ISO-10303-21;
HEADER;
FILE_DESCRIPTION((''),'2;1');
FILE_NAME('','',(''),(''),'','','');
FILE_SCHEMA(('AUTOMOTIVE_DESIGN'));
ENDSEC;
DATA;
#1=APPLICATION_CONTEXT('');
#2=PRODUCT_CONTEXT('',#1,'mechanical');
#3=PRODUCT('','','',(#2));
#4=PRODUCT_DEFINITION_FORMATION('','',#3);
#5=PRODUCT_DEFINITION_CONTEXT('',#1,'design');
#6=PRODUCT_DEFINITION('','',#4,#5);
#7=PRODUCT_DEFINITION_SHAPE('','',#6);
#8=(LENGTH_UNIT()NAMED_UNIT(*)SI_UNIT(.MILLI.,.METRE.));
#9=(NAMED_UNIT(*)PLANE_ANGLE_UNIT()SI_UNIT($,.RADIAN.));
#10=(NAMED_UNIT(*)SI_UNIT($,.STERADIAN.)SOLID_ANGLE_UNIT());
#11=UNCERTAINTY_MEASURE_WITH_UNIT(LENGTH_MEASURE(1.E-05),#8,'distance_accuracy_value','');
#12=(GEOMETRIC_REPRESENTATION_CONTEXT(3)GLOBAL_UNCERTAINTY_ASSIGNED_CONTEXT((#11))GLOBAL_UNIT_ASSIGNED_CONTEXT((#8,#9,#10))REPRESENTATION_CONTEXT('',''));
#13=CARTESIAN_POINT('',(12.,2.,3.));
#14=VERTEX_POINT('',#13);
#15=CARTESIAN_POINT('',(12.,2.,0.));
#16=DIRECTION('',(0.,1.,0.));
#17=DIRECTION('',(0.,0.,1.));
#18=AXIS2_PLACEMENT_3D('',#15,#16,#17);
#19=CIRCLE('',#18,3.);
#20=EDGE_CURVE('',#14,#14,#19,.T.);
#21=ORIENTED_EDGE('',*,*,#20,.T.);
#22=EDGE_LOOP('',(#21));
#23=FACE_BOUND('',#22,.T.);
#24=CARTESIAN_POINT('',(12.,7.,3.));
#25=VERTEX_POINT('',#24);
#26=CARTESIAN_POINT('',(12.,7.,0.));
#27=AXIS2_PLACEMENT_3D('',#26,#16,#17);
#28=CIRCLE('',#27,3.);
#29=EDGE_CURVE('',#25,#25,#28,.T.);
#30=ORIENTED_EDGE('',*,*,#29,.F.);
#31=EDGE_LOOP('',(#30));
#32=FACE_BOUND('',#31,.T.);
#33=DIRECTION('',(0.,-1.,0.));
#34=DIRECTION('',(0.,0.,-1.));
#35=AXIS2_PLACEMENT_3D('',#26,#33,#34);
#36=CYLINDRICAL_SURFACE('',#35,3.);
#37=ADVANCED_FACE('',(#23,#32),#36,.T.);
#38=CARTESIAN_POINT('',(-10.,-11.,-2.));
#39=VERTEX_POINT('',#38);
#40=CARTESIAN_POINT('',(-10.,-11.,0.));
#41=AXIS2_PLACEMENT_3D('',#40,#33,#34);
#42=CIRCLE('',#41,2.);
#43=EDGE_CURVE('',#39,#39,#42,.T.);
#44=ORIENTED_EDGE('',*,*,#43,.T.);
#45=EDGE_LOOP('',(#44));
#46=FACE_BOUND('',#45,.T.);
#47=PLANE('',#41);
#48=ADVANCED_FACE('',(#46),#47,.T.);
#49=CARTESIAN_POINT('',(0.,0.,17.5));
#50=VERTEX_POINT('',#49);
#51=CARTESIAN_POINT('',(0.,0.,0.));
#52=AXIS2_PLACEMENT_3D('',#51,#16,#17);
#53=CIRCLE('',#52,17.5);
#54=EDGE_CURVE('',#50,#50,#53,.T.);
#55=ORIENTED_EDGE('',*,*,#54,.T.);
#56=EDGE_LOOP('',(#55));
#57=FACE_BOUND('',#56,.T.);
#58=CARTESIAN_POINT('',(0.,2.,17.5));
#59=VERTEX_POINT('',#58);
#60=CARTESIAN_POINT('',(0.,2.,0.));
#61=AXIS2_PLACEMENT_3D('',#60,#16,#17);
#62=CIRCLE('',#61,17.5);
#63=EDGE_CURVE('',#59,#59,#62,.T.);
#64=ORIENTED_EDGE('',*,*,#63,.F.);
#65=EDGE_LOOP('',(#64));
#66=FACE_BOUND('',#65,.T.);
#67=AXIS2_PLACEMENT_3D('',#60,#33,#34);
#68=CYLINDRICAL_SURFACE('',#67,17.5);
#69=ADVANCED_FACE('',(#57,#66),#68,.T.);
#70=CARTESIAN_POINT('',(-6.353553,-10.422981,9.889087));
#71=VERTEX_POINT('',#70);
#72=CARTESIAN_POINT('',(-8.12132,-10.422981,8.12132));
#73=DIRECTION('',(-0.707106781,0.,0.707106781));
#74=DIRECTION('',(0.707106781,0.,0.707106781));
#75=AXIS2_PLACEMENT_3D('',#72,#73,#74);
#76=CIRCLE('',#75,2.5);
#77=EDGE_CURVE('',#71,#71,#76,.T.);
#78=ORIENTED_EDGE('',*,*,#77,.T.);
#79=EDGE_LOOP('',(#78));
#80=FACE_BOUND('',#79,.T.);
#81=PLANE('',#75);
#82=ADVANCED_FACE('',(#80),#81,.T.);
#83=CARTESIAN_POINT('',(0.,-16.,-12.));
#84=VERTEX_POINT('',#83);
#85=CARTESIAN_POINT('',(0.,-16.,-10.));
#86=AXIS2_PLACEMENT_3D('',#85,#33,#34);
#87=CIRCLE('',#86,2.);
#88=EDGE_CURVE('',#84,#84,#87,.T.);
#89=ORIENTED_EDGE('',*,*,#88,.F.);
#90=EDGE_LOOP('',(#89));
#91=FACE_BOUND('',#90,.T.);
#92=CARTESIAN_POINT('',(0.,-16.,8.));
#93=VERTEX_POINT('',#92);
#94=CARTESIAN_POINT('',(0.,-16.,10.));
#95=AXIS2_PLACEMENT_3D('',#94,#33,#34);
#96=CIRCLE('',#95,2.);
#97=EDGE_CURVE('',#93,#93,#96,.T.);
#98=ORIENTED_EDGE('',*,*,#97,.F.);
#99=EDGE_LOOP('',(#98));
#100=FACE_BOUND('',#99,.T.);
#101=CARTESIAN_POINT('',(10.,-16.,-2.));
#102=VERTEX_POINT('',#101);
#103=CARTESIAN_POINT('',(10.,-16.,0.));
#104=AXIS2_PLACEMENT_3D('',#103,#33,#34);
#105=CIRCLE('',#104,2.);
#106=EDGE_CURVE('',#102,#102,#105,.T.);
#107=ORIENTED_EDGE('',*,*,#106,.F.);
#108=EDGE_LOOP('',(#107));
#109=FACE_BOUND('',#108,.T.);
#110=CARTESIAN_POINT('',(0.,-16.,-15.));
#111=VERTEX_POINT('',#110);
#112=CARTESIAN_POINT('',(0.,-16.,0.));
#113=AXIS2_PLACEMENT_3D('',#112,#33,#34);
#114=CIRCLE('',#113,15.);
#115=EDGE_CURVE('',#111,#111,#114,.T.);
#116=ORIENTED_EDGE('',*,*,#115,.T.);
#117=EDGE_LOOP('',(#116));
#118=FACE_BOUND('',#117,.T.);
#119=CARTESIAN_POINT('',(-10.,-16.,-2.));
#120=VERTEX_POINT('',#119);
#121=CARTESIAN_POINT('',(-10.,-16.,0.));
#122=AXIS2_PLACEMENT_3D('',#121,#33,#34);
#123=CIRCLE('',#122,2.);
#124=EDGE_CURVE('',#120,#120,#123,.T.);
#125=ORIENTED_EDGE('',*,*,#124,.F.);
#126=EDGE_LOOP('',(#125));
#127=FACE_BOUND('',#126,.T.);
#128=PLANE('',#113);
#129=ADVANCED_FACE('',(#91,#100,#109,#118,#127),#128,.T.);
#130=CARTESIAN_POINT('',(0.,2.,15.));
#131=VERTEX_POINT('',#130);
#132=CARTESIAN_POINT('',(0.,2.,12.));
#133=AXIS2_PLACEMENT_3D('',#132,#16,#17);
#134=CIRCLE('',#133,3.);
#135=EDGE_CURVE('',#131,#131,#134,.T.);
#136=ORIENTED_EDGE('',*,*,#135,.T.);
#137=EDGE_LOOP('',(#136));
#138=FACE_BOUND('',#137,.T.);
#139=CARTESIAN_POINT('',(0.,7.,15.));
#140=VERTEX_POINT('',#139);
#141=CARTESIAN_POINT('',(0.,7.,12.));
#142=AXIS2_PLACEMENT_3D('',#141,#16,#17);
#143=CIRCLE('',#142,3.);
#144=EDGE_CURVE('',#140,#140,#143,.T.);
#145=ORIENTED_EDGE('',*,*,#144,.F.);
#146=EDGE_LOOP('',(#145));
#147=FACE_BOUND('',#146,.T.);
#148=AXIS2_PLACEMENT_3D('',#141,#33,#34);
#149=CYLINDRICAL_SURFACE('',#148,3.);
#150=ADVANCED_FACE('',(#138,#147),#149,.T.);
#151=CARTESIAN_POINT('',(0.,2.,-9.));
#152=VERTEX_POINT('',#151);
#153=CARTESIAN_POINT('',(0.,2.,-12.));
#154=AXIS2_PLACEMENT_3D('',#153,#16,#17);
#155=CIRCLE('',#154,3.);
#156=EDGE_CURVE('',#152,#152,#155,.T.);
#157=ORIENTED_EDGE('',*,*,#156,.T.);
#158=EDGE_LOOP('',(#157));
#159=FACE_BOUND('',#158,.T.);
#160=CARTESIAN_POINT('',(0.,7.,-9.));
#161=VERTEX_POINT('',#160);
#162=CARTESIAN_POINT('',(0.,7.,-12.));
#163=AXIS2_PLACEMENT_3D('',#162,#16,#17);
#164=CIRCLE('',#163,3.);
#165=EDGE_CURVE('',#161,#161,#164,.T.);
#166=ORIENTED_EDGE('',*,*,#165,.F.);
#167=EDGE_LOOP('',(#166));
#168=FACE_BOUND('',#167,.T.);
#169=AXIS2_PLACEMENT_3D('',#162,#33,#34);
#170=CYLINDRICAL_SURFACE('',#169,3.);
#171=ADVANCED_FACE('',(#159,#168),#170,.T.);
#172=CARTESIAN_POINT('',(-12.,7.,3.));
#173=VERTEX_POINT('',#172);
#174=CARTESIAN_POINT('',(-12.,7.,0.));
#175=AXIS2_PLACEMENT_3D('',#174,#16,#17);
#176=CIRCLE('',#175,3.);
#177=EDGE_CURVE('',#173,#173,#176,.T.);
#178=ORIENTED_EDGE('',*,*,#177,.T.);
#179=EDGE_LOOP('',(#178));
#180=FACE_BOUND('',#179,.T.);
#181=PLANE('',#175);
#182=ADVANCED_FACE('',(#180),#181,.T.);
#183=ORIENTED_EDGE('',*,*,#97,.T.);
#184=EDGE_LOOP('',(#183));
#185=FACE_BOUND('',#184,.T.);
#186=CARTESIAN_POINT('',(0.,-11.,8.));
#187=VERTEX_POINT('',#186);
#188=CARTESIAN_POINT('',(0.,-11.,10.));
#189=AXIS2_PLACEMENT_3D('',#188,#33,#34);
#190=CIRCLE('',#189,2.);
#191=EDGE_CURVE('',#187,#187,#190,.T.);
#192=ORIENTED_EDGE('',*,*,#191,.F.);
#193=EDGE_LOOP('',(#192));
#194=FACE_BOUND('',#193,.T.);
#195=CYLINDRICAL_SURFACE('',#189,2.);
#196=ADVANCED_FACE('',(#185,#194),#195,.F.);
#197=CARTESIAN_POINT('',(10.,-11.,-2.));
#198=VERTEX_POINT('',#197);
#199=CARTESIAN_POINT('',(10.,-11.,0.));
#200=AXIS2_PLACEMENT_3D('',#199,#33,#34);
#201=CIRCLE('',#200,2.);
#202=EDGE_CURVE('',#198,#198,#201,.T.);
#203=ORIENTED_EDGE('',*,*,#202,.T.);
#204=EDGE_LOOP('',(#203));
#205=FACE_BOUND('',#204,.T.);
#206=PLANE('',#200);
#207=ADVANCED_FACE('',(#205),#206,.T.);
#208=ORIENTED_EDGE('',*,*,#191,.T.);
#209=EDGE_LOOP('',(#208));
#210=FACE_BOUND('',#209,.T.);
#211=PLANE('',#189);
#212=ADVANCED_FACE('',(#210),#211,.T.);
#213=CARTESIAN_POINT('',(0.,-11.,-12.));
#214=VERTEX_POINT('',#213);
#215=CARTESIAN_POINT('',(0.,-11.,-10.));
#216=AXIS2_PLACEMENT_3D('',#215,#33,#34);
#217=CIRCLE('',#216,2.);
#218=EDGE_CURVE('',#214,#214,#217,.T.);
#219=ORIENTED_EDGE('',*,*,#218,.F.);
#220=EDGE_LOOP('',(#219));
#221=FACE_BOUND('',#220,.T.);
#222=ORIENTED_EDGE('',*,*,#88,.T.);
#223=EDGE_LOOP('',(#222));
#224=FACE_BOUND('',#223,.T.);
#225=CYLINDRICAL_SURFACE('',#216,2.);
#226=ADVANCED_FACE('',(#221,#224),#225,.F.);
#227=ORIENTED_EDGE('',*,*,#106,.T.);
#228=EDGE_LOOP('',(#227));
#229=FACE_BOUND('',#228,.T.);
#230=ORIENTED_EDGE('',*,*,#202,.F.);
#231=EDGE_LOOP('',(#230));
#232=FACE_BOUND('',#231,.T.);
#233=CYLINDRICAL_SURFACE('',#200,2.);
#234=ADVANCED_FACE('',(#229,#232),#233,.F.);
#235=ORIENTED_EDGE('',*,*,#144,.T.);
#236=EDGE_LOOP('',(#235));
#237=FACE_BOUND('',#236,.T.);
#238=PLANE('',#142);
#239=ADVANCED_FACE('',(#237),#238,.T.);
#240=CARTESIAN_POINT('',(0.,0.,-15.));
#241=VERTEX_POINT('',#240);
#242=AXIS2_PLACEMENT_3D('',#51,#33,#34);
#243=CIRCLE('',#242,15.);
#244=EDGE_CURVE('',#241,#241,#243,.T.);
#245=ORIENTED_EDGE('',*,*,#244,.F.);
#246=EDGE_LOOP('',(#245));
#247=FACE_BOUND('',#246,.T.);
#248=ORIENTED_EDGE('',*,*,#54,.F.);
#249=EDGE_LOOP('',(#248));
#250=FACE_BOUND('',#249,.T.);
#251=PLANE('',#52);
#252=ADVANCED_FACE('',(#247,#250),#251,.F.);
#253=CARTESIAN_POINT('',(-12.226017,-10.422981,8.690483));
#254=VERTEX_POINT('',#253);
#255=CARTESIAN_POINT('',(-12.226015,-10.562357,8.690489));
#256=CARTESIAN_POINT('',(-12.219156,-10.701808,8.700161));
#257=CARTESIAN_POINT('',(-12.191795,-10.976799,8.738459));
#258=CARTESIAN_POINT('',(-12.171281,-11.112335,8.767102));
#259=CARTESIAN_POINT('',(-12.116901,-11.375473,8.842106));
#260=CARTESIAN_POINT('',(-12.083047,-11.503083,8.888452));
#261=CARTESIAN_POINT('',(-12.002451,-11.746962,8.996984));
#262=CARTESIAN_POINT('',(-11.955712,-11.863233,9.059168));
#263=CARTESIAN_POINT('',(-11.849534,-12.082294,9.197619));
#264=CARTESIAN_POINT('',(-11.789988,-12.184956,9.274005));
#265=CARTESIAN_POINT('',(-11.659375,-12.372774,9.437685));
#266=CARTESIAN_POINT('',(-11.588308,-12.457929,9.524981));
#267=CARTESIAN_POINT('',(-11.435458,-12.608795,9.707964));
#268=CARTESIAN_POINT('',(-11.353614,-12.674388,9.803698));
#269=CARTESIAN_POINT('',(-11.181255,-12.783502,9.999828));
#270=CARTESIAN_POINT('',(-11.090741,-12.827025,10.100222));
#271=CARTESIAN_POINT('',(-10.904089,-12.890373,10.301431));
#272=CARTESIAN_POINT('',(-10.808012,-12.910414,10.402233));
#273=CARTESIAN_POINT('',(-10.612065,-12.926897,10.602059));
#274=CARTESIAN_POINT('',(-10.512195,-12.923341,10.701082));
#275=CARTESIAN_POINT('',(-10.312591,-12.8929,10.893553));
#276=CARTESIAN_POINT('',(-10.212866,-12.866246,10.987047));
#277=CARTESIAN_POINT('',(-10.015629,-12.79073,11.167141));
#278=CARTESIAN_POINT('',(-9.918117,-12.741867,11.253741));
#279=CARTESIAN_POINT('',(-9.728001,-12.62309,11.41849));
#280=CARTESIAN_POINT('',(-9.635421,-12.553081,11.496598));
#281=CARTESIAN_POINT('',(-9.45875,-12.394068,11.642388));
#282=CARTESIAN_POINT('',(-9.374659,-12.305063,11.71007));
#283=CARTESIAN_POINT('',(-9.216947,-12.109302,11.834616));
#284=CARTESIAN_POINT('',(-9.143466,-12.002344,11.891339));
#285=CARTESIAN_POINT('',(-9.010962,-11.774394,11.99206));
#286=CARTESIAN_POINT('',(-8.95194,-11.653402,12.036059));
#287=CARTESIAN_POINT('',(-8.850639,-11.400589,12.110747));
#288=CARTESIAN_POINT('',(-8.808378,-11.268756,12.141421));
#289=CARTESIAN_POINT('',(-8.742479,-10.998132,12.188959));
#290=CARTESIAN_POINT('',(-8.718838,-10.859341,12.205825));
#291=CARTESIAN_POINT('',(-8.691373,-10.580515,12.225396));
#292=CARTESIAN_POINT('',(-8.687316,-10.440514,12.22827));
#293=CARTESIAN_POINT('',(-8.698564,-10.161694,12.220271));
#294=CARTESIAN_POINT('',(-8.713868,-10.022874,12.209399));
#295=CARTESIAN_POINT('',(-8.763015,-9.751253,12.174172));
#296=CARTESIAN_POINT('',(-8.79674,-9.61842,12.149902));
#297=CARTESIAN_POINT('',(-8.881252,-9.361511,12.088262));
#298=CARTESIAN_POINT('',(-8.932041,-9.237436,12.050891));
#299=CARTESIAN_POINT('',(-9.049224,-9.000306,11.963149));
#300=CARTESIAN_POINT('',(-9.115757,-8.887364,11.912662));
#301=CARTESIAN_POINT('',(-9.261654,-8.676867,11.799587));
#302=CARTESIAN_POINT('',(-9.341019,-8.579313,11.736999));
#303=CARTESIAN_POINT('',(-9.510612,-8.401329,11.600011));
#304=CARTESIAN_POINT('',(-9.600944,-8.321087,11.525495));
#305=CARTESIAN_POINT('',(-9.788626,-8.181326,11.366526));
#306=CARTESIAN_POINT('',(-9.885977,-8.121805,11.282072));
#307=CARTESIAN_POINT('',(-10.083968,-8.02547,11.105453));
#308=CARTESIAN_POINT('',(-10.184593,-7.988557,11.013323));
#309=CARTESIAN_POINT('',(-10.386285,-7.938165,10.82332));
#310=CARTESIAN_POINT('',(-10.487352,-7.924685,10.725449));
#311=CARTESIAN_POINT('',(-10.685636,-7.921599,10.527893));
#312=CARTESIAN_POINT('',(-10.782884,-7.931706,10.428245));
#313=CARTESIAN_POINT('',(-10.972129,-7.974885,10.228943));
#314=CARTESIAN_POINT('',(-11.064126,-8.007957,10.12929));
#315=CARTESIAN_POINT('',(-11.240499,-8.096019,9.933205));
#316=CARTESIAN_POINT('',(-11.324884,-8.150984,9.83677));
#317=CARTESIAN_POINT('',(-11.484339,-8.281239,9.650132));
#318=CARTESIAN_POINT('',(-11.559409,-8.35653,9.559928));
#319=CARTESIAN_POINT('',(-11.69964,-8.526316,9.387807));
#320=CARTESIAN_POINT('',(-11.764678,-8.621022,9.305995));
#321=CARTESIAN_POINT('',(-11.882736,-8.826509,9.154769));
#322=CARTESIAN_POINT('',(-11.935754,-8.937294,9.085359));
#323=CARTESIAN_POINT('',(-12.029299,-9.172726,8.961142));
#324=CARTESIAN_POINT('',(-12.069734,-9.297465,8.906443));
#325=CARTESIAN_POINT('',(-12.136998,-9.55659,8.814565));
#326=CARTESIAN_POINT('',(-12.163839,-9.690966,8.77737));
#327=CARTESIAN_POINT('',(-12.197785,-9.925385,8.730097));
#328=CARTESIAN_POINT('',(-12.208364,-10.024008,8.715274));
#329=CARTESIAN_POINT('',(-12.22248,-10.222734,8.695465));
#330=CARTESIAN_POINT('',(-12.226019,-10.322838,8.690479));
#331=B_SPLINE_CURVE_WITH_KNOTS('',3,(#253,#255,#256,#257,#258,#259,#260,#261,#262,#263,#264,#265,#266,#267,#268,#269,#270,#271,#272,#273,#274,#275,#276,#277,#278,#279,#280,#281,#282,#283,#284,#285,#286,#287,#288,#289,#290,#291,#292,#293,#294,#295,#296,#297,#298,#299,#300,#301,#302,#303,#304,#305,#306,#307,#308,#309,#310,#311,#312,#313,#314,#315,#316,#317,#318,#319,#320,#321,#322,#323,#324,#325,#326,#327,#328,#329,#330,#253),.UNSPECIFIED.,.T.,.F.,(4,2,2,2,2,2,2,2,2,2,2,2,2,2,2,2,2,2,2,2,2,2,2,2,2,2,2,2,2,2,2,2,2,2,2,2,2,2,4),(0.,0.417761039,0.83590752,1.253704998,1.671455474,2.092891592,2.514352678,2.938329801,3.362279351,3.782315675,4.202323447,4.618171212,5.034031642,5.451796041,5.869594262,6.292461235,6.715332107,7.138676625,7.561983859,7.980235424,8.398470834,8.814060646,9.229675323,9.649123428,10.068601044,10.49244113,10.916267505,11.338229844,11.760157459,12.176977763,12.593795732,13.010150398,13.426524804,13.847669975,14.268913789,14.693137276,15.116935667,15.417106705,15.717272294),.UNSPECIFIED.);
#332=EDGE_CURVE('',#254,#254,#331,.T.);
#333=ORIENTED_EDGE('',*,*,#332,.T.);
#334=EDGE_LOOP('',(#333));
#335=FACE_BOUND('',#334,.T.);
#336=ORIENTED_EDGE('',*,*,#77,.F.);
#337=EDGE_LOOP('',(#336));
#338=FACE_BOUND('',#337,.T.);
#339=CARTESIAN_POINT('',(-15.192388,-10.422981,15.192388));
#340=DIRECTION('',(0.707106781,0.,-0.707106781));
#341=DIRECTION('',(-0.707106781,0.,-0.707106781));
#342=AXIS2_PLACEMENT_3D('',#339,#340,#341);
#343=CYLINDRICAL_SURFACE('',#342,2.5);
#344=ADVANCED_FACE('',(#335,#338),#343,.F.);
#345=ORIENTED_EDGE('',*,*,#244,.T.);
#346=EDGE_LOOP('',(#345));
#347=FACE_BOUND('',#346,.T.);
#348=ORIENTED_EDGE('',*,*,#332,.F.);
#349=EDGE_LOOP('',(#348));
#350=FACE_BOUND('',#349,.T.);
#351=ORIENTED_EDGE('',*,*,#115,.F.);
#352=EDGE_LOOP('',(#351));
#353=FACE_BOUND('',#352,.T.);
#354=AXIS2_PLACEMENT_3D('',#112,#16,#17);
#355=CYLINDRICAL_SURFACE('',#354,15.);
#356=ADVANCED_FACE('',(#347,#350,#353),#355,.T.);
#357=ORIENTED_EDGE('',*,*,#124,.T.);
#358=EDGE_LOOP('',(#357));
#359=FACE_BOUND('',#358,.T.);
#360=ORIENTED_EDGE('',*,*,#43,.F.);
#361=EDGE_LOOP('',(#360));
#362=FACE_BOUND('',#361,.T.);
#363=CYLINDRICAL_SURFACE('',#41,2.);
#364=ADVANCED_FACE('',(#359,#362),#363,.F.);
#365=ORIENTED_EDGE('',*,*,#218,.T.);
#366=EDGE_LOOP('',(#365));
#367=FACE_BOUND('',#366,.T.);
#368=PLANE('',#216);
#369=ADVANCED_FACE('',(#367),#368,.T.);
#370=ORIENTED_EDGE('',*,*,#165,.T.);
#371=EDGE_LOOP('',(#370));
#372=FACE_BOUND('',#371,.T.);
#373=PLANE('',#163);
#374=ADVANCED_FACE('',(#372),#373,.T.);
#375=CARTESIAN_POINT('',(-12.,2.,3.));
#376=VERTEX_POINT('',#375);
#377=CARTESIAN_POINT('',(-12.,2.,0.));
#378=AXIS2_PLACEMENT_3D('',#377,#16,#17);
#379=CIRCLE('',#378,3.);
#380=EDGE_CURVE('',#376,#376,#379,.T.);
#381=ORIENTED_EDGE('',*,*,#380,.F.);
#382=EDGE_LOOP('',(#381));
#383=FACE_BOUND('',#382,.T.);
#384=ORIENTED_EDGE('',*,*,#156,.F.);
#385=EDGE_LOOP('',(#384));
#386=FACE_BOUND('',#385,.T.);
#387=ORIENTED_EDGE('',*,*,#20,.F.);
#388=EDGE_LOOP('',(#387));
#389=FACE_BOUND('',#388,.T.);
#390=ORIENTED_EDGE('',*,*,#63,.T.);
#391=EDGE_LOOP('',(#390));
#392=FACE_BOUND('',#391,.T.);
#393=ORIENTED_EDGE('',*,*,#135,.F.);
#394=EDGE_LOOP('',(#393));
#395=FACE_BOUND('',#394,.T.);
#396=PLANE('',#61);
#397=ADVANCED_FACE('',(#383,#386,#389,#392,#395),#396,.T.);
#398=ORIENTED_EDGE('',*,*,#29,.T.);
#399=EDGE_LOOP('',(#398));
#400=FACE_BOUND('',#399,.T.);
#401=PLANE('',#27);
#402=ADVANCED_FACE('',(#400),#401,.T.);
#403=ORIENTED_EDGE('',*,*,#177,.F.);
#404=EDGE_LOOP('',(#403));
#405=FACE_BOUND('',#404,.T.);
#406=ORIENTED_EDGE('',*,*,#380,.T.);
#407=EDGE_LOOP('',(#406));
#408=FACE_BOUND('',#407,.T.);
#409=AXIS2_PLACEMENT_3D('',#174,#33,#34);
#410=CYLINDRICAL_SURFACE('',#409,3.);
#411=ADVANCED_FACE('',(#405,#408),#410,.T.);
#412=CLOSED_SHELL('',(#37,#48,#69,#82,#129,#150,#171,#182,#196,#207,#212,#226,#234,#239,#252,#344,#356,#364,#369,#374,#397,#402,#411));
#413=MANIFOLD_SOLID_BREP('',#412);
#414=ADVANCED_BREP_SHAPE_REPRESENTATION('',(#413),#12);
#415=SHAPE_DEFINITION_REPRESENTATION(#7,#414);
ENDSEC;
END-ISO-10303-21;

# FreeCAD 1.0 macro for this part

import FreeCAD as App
import Part
import Sketcher

doc = App.newDocument("Part")
params = doc.addObject("Spreadsheet::Sheet", "Params")
for row, (alias, value) in enumerate([
    ("sketch1_diameter", "35 mm"),
    ("pad1_length", "2 mm"),
    ("sketch2_diameter", "6 mm"),
    ("pad2_length", "5 mm"),
    ("sketch3_diameter", "30 mm"),
    ("pad3_length", "16 mm"),
    ("sketch4_diameter", "4 mm"),
    ("pocket1_length", "5 mm"),
    ("sketch5_diameter", "5 mm"),
    ("pocket2_length", "10 mm"),
], start=1):
    params.set(f"A{row}", alias)
    params.set(f"B{row}", "=" + value)
    params.setAlias(f"B{row}", alias)

body = doc.addObject("PartDesign::Body", "Body")

sketch1 = body.newObject("Sketcher::SketchObject", "Sketch")
sketch1.AttachmentSupport = (doc.getObject("XZ_Plane"), [""])
sketch1.MapMode = "FlatFace"
sketch1.addGeometry(Part.Circle(App.Vector(0, 0, 0), App.Vector(0, 0, 1), 18), False)
sketch1.addConstraint([
    Sketcher.Constraint("Coincident", 0, 3, -1, 1),
    Sketcher.Constraint("Diameter", 0, 35.0),
])
sketch1.setExpression("Constraints[1]", "Params.sketch1_diameter")
pad1 = body.newObject("PartDesign::Pad", "Pad")
pad1.Profile = sketch1
pad1.setExpression("Length", "Params.pad1_length")
pad1.Reversed = True

sketch2 = body.newObject("Sketcher::SketchObject", "Sketch001")
sketch2.AttachmentSupport = (doc.getObject("XZ_Plane"), [""])
sketch2.MapMode = "FlatFace"
sketch2.AttachmentOffset = App.Placement(App.Vector(0, 0, -2), App.Rotation())
sketch2.addGeometry([
    Part.Circle(App.Vector(12, 0, 0), App.Vector(0, 0, 1), 3),
    Part.Circle(App.Vector(0, 12, 0), App.Vector(0, 0, 1), 3),
    Part.Circle(App.Vector(-12, 0, 0), App.Vector(0, 0, 1), 3),
    Part.Circle(App.Vector(0, -12, 0), App.Vector(0, 0, 1), 3),
], False)
sketch2.addConstraint([
    Sketcher.Constraint("Equal", 0, 1),
    Sketcher.Constraint("Equal", 1, 2),
    Sketcher.Constraint("Equal", 2, 3),
    Sketcher.Constraint("Symmetric", 0, 3, 2, 3, -1, 1),
    Sketcher.Constraint("Symmetric", 1, 3, 3, 3, -1, 1),
    Sketcher.Constraint("PointOnObject", 0, 3, -1),
    Sketcher.Constraint("PointOnObject", 1, 3, -2),
    Sketcher.Constraint("Diameter", 0, 6.0),
    Sketcher.Constraint("DistanceX", -1, 1, 0, 3, 12.0),
    Sketcher.Constraint("DistanceY", -1, 1, 1, 3, 12.0),
])
sketch2.setExpression("Constraints[7]", "Params.sketch2_diameter")
pad2 = body.newObject("PartDesign::Pad", "Pad001")
pad2.Profile = sketch2
pad2.setExpression("Length", "Params.pad2_length")
pad2.Reversed = True

sketch3 = body.newObject("Sketcher::SketchObject", "Sketch002")
sketch3.AttachmentSupport = (doc.getObject("XZ_Plane"), [""])
sketch3.MapMode = "FlatFace"
sketch3.addGeometry(Part.Circle(App.Vector(0, 0, 0), App.Vector(0, 0, 1), 15), False)
sketch3.addConstraint([
    Sketcher.Constraint("Coincident", 0, 3, -1, 1),
    Sketcher.Constraint("Diameter", 0, 30.0),
])
sketch3.setExpression("Constraints[1]", "Params.sketch3_diameter")
pad3 = body.newObject("PartDesign::Pad", "Pad002")
pad3.Profile = sketch3
pad3.setExpression("Length", "Params.pad3_length")

sketch4 = body.newObject("Sketcher::SketchObject", "Sketch003")
sketch4.AttachmentSupport = (doc.getObject("XZ_Plane"), [""])
sketch4.MapMode = "FlatFace"
sketch4.AttachmentOffset = App.Placement(App.Vector(0, 0, 16), App.Rotation())
sketch4.addGeometry([
    Part.Circle(App.Vector(-10, 0, 0), App.Vector(0, 0, 1), 2),
    Part.Circle(App.Vector(0, 10, 0), App.Vector(0, 0, 1), 2),
    Part.Circle(App.Vector(10, 0, 0), App.Vector(0, 0, 1), 2),
    Part.Circle(App.Vector(0, -10, 0), App.Vector(0, 0, 1), 2),
], False)
sketch4.addConstraint([
    Sketcher.Constraint("Equal", 0, 1),
    Sketcher.Constraint("Equal", 1, 2),
    Sketcher.Constraint("Equal", 2, 3),
    Sketcher.Constraint("Symmetric", 0, 3, 2, 3, -1, 1),
    Sketcher.Constraint("Symmetric", 1, 3, 3, 3, -1, 1),
    Sketcher.Constraint("PointOnObject", 0, 3, -1),
    Sketcher.Constraint("PointOnObject", 1, 3, -2),
    Sketcher.Constraint("Diameter", 0, 4.0),
    Sketcher.Constraint("DistanceX", 0, 3, -1, 1, 10.0),
    Sketcher.Constraint("DistanceY", -1, 1, 1, 3, 10.0),
])
sketch4.setExpression("Constraints[7]", "Params.sketch4_diameter")
pocket1 = body.newObject("PartDesign::Pocket", "Pocket")
pocket1.Profile = sketch4
pocket1.setExpression("Length", "Params.pocket1_length")

sketch5 = body.newObject("Sketcher::SketchObject", "Sketch004")
sketch5.Placement = App.Placement(App.Vector(-8.12132, 0, 8.12132), App.Rotation(App.Vector(0.707106781, 0, 0.707106781), App.Vector(0, 0.999999999, 0), App.Vector(-0.707106781, 0, 0.707106781), "ZXY"))
sketch5.addGeometry(Part.Circle(App.Vector(0, -10.4, 0), App.Vector(0, 0, 1), 2.5), False)
sketch5.addConstraint([
    Sketcher.Constraint("PointOnObject", 0, 3, -2),
    Sketcher.Constraint("Diameter", 0, 5.0),
    Sketcher.Constraint("DistanceY", 0, 3, -1, 1, 10.422981),
])
sketch5.setExpression("Constraints[1]", "Params.sketch5_diameter")
pocket2 = body.newObject("PartDesign::Pocket", "Pocket001")
pocket2.Profile = sketch5
pocket2.setExpression("Length", "Params.pocket2_length")
pocket2.Reversed = True

doc.recompute()
